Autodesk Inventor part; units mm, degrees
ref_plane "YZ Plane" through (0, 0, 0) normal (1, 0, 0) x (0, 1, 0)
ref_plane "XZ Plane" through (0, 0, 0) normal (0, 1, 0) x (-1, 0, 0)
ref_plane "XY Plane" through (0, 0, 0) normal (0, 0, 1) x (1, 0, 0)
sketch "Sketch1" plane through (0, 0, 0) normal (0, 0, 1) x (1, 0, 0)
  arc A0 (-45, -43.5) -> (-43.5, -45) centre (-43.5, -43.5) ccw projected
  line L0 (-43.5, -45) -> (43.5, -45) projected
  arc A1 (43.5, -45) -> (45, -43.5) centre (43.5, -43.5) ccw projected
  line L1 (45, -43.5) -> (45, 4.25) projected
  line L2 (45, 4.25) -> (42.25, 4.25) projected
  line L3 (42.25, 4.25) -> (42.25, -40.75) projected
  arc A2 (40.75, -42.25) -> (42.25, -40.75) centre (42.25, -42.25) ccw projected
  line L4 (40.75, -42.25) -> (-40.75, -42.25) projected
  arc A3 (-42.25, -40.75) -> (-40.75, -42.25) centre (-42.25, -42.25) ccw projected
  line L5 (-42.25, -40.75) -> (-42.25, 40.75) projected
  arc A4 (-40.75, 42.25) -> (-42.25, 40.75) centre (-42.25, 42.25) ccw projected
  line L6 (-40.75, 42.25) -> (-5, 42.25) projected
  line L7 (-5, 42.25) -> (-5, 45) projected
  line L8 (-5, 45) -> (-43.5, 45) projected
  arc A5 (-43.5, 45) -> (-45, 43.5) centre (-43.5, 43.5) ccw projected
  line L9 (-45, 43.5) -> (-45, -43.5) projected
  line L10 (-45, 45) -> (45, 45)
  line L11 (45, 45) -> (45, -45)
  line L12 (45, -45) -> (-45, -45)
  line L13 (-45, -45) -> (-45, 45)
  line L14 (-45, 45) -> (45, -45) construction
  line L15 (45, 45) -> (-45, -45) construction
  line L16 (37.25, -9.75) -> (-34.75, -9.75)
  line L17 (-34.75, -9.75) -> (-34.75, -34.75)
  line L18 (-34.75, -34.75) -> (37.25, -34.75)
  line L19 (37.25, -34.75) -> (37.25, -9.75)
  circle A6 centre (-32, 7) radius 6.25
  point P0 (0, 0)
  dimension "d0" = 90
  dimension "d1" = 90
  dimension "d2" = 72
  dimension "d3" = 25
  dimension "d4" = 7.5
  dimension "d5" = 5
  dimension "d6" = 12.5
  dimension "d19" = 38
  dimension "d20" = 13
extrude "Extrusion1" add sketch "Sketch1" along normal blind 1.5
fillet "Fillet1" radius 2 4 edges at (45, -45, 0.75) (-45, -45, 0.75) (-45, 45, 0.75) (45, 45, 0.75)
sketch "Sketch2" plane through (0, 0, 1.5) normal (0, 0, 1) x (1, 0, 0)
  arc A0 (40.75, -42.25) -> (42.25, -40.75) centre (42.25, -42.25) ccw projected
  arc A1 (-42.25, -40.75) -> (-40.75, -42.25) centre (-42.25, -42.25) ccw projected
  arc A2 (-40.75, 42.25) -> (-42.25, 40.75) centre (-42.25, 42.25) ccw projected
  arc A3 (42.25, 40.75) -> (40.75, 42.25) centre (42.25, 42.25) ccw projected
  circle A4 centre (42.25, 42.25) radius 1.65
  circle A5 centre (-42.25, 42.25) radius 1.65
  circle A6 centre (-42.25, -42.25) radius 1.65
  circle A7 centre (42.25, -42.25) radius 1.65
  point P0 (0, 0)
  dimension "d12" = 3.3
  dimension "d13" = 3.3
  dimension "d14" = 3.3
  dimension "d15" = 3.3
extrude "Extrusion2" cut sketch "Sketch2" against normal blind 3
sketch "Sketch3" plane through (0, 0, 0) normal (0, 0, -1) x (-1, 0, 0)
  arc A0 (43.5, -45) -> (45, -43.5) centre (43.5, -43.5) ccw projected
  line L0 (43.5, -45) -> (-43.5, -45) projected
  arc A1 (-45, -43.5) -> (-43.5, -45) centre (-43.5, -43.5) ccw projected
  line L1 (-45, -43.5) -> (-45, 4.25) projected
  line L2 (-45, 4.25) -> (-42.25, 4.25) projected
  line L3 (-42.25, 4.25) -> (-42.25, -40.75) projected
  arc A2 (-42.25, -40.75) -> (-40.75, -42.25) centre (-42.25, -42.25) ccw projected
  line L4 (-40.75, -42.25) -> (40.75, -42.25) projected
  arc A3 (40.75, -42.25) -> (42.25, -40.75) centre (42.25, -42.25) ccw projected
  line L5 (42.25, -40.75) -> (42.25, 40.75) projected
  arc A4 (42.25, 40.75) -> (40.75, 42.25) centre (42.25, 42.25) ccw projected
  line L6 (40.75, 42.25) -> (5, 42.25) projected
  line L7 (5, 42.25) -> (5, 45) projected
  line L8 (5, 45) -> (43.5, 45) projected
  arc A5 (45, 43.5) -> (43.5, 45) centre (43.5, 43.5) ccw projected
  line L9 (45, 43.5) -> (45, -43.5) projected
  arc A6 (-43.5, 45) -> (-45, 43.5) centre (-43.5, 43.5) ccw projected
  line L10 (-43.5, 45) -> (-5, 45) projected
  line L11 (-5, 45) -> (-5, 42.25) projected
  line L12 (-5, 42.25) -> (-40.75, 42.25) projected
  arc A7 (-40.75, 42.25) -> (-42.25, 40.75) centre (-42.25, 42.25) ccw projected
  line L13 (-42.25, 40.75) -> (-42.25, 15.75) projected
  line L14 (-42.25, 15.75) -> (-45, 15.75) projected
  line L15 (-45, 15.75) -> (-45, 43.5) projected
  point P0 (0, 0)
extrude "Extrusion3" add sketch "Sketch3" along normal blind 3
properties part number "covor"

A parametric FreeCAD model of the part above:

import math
import FreeCAD as App
import Part
import Sketcher
Q = App.Units.Quantity


def edges_at(feature, points):
    """Names of the edges that pass closest to the given points."""
    edges = feature.Shape.Edges
    near = lambda p: min(range(len(edges)), key=lambda i: edges[i].distToShape(Part.Vertex(*p))[0])
    return sorted({f"Edge{near(p) + 1}" for p in points})


def add_polygon(sketch, points):
    """Adds a closed chain of lines whose ends are joined by coincident constraints."""
    first, n = sketch.GeometryCount, len(points)
    for a, b in zip(points, points[1:] + points[:1]):
        sketch.addGeometry(Part.LineSegment(App.Vector(*a, 0), App.Vector(*b, 0)), False)
    for i in range(n):
        sketch.addConstraint(Sketcher.Constraint("Coincident", first + i, 2, first + (i + 1) % n, 1))

doc = App.newDocument("Part")
body = doc.addObject("PartDesign::Body", "Body")

sketch1 = doc.addObject("Sketcher::SketchObject", "Sketch")
body.addObject(sketch1)
sketch1.AttachmentSupport = (doc.XY_Plane, [""])
sketch1.MapMode = "FlatFace"
add_polygon(sketch1, [(-45, -45), (45, -45), (45, 45), (-45, 45)])
add_polygon(sketch1, [(-35, -35), (-35, -10), (37, -10), (37, -35)])
sketch1.addGeometry(Part.Circle(App.Vector(-32, 7, 0), App.Vector(0, 0, 1), 6), False)
sketch1.addConstraint([
    Sketcher.Constraint("Horizontal", 0),
    Sketcher.Constraint("Vertical", 1),
    Sketcher.Constraint("Horizontal", 2),
    Sketcher.Constraint("Vertical", 3),
    Sketcher.Constraint("Vertical", 4),
    Sketcher.Constraint("Horizontal", 5),
    Sketcher.Constraint("Vertical", 6),
    Sketcher.Constraint("Horizontal", 7),
    Sketcher.Constraint("Symmetric", 0, 2, 2, 2, -1, 1),
    Sketcher.Constraint("Equal", 2, 1),
    Sketcher.Constraint("Diameter", 8, Q("12.5 mm")),
    Sketcher.Constraint("DistanceX", 0, 1, 0, 2, Q("90 mm")),
    Sketcher.Constraint("DistanceX", 5, 1, 5, 2, Q("72 mm")),
    Sketcher.Constraint("DistanceY", 4, 1, 4, 2, Q("25 mm")),
    Sketcher.Constraint("DistanceY", 8, 3, 1, 2, Q("38 mm")),
    Sketcher.Constraint("DistanceX", 2, 2, 8, 3, Q("13 mm")),
    Sketcher.Constraint("DistanceX", 4, 2, -1, 1, Q("34.75 mm")),
    Sketcher.Constraint("DistanceY", 4, 2, -1, 1, Q("9.75 mm")),
])
pad1 = doc.addObject("PartDesign::Pad", "Pad")
body.addObject(pad1)
pad1.Profile = sketch1
pad1.Length = 1.5
doc.recompute()

fillet = doc.addObject("PartDesign::Fillet", "Fillet")
body.addObject(fillet)
fillet.Base = (pad1, edges_at(pad1, [
    (45, -45, 0.75),
    (-45, -45, 0.75),
    (-45, 45, 0.75),
    (45, 45, 0.75),
]))
fillet.Radius = 2

sketch2 = doc.addObject("Sketcher::SketchObject", "Sketch001")
body.addObject(sketch2)
sketch2.AttachmentSupport = (doc.XY_Plane, [""])
sketch2.MapMode = "FlatFace"
sketch2.AttachmentOffset = App.Placement(App.Vector(0, 0, 1.5), App.Rotation())
sketch2.addGeometry([
    Part.Circle(App.Vector(42.2, 42.2, 0), App.Vector(0, 0, 1), 1.6),
    Part.Circle(App.Vector(-42.2, 42.2, 0), App.Vector(0, 0, 1), 1.6),
    Part.Circle(App.Vector(-42.2, -42.2, 0), App.Vector(0, 0, 1), 1.6),
    Part.Circle(App.Vector(42.2, -42.2, 0), App.Vector(0, 0, 1), 1.6),
], False)
sketch2.addConstraint([
    Sketcher.Constraint("Equal", 0, 1),
    Sketcher.Constraint("Equal", 1, 2),
    Sketcher.Constraint("Equal", 2, 3),
    Sketcher.Constraint("Symmetric", 0, 3, 2, 3, -1, 1),
    Sketcher.Constraint("Symmetric", 1, 3, 3, 3, -1, 1),
    Sketcher.Constraint("Symmetric", 0, 3, 1, 3, -2),
    Sketcher.Constraint("Diameter", 0, Q("3.3 mm")),
    Sketcher.Constraint("DistanceX", 1, 3, 0, 3, Q("84.5 mm")),
    Sketcher.Constraint("DistanceY", 2, 3, 1, 3, Q("84.5 mm")),
])
pocket1 = doc.addObject("PartDesign::Pocket", "Pocket")
body.addObject(pocket1)
pocket1.Profile = sketch2
pocket1.Length = 3

sketch3 = doc.addObject("Sketcher::SketchObject", "Sketch002")
body.addObject(sketch3)
sketch3.AttachmentSupport = (doc.XY_Plane, [""])
sketch3.MapMode = "FlatFace"
sketch3.addGeometry([
    Part.LineSegment(App.Vector(43.5, -45, 0), App.Vector(-43.5, -45, 0)),
    Part.ArcOfCircle(Part.Circle(App.Vector(-43.5, -43.5, 0), App.Vector(0, 0, 1), 1.5), math.radians(180), math.radians(270)),
    Part.LineSegment(App.Vector(-45, -43.5, 0), App.Vector(-45, 43.5, 0)),
    Part.ArcOfCircle(Part.Circle(App.Vector(-43.5, 43.5, 0), App.Vector(0, 0, 1), 1.5), math.radians(90), math.radians(180)),
    Part.LineSegment(App.Vector(-43.5, 45, 0), App.Vector(-5, 45, 0)),
    Part.LineSegment(App.Vector(-5, 45, 0), App.Vector(-5, 42.2, 0)),
    Part.LineSegment(App.Vector(-5, 42.2, 0), App.Vector(-40.8, 42.2, 0)),
    Part.ArcOfCircle(Part.Circle(App.Vector(-42.2, 42.2, 0), App.Vector(0, 0, 1), 1.5), math.radians(0), math.radians(270)),
    Part.LineSegment(App.Vector(-42.2, 40.8, 0), App.Vector(-42.2, -40.8, 0)),
    Part.ArcOfCircle(Part.Circle(App.Vector(-42.2, -42.2, 0), App.Vector(0, 0, 1), 1.5), math.radians(90), math.radians(360)),
    Part.LineSegment(App.Vector(-40.8, -42.2, 0), App.Vector(40.8, -42.2, 0)),
    Part.ArcOfCircle(Part.Circle(App.Vector(42.2, -42.2, 0), App.Vector(0, 0, 1), 1.5), math.radians(180), math.radians(450)),
    Part.LineSegment(App.Vector(42.2, -40.8, 0), App.Vector(42.2, 4.2, 0)),
    Part.LineSegment(App.Vector(42.2, 4.2, 0), App.Vector(45, 4.2, 0)),
    Part.LineSegment(App.Vector(45, 4.2, 0), App.Vector(45, -43.5, 0)),
    Part.ArcOfCircle(Part.Circle(App.Vector(43.5, -43.5, 0), App.Vector(0, 0, 1), 1.5), math.radians(-90), math.radians(0)),
    Part.LineSegment(App.Vector(5, 45, 0), App.Vector(43.5, 45, 0)),
    Part.ArcOfCircle(Part.Circle(App.Vector(43.5, 43.5, 0), App.Vector(0, 0, 1), 1.5), math.radians(0), math.radians(90)),
    Part.LineSegment(App.Vector(45, 43.5, 0), App.Vector(45, 15.8, 0)),
    Part.LineSegment(App.Vector(45, 15.8, 0), App.Vector(42.2, 15.8, 0)),
    Part.LineSegment(App.Vector(42.2, 15.8, 0), App.Vector(42.2, 40.8, 0)),
    Part.ArcOfCircle(Part.Circle(App.Vector(42.2, 42.2, 0), App.Vector(0, 0, 1), 1.5), math.radians(-90), math.radians(180)),
    Part.LineSegment(App.Vector(40.8, 42.2, 0), App.Vector(5, 42.2, 0)),
    Part.LineSegment(App.Vector(5, 42.2, 0), App.Vector(5, 45, 0)),
], False)
sketch3.addConstraint([
    Sketcher.Constraint("Tangent", 0, 2, 1, 2),
    Sketcher.Constraint("Tangent", 1, 1, 2, 1),
    Sketcher.Constraint("Tangent", 2, 2, 3, 2),
    Sketcher.Constraint("Tangent", 3, 1, 4, 1),
    Sketcher.Constraint("Coincident", 4, 2, 5, 1),
    Sketcher.Constraint("Coincident", 5, 2, 6, 1),
    Sketcher.Constraint("Coincident", 6, 2, 7, 1),
    Sketcher.Constraint("Coincident", 7, 2, 8, 1),
    Sketcher.Constraint("Coincident", 8, 2, 9, 1),
    Sketcher.Constraint("Coincident", 9, 2, 10, 1),
    Sketcher.Constraint("Coincident", 10, 2, 11, 1),
    Sketcher.Constraint("Coincident", 11, 2, 12, 1),
    Sketcher.Constraint("Coincident", 12, 2, 13, 1),
    Sketcher.Constraint("Coincident", 13, 2, 14, 1),
    Sketcher.Constraint("Tangent", 14, 2, 15, 2),
    Sketcher.Constraint("Tangent", 15, 1, 0, 1),
    Sketcher.Constraint("Tangent", 16, 2, 17, 2),
    Sketcher.Constraint("Tangent", 17, 1, 18, 1),
    Sketcher.Constraint("Coincident", 18, 2, 19, 1),
    Sketcher.Constraint("Coincident", 19, 2, 20, 1),
    Sketcher.Constraint("Coincident", 20, 2, 21, 1),
    Sketcher.Constraint("Coincident", 21, 2, 22, 1),
    Sketcher.Constraint("Coincident", 22, 2, 23, 1),
    Sketcher.Constraint("Coincident", 23, 2, 16, 1),
    Sketcher.Constraint("Horizontal", 0),
    Sketcher.Constraint("Vertical", 2),
    Sketcher.Constraint("Horizontal", 4),
    Sketcher.Constraint("Vertical", 5),
    Sketcher.Constraint("Horizontal", 6),
    Sketcher.Constraint("Vertical", 8),
    Sketcher.Constraint("Horizontal", 10),
    Sketcher.Constraint("Vertical", 12),
    Sketcher.Constraint("Horizontal", 13),
    Sketcher.Constraint("Vertical", 14),
    Sketcher.Constraint("Horizontal", 16),
    Sketcher.Constraint("Vertical", 18),
    Sketcher.Constraint("Horizontal", 19),
    Sketcher.Constraint("Vertical", 20),
    Sketcher.Constraint("Horizontal", 22),
    Sketcher.Constraint("Vertical", 23),
    Sketcher.Constraint("Equal", 1, 3),
    Sketcher.Constraint("Equal", 3, 7),
    Sketcher.Constraint("Equal", 7, 9),
    Sketcher.Constraint("Equal", 9, 11),
    Sketcher.Constraint("Equal", 11, 15),
    Sketcher.Constraint("Equal", 15, 17),
    Sketcher.Constraint("Equal", 17, 21),
    Sketcher.Constraint("Symmetric", 7, 3, 11, 3, -1, 1),
    Sketcher.Constraint("Symmetric", 3, 3, 15, 3, -1, 1),
    Sketcher.Constraint("Symmetric", 1, 3, 17, 3, -1, 1),
    Sketcher.Constraint("Symmetric", 9, 3, 21, 3, -1, 1),
    Sketcher.Constraint("Symmetric", 9, 3, 11, 3, -2),
    Sketcher.Constraint("Symmetric", 5, 2, 22, 2, -2),
    Sketcher.Constraint("Horizontal", 21, 3, 5, 2),
    Sketcher.Constraint("Horizontal", 11, 3, 9, 2),
    Sketcher.Constraint("Vertical", 9, 3, 7, 2),
    Sketcher.Constraint("Vertical", 21, 3, 11, 2),
    Sketcher.Constraint("Vertical", 12, 2, 19, 2),
    Sketcher.Constraint("Equal", 0, 2),
    Sketcher.Constraint("Equal", 19, 5),
    Sketcher.Constraint("Radius", 1, Q("1.5 mm")),
    Sketcher.Constraint("DistanceX", 0, 2, 0, 1, Q("87 mm")),
    Sketcher.Constraint("DistanceY", 12, 1, 12, 2, Q("45 mm")),
    Sketcher.Constraint("DistanceY", 20, 1, 20, 2, Q("25 mm")),
    Sketcher.Constraint("DistanceX", 4, 1, 4, 2, Q("38.5 mm")),
    Sketcher.Constraint("DistanceX", 10, 1, 10, 2, Q("81.5 mm")),
])
pad2 = doc.addObject("PartDesign::Pad", "Pad001")
body.addObject(pad2)
pad2.Profile = sketch3
pad2.Length = 3
pad2.Reversed = True

doc.recompute()
